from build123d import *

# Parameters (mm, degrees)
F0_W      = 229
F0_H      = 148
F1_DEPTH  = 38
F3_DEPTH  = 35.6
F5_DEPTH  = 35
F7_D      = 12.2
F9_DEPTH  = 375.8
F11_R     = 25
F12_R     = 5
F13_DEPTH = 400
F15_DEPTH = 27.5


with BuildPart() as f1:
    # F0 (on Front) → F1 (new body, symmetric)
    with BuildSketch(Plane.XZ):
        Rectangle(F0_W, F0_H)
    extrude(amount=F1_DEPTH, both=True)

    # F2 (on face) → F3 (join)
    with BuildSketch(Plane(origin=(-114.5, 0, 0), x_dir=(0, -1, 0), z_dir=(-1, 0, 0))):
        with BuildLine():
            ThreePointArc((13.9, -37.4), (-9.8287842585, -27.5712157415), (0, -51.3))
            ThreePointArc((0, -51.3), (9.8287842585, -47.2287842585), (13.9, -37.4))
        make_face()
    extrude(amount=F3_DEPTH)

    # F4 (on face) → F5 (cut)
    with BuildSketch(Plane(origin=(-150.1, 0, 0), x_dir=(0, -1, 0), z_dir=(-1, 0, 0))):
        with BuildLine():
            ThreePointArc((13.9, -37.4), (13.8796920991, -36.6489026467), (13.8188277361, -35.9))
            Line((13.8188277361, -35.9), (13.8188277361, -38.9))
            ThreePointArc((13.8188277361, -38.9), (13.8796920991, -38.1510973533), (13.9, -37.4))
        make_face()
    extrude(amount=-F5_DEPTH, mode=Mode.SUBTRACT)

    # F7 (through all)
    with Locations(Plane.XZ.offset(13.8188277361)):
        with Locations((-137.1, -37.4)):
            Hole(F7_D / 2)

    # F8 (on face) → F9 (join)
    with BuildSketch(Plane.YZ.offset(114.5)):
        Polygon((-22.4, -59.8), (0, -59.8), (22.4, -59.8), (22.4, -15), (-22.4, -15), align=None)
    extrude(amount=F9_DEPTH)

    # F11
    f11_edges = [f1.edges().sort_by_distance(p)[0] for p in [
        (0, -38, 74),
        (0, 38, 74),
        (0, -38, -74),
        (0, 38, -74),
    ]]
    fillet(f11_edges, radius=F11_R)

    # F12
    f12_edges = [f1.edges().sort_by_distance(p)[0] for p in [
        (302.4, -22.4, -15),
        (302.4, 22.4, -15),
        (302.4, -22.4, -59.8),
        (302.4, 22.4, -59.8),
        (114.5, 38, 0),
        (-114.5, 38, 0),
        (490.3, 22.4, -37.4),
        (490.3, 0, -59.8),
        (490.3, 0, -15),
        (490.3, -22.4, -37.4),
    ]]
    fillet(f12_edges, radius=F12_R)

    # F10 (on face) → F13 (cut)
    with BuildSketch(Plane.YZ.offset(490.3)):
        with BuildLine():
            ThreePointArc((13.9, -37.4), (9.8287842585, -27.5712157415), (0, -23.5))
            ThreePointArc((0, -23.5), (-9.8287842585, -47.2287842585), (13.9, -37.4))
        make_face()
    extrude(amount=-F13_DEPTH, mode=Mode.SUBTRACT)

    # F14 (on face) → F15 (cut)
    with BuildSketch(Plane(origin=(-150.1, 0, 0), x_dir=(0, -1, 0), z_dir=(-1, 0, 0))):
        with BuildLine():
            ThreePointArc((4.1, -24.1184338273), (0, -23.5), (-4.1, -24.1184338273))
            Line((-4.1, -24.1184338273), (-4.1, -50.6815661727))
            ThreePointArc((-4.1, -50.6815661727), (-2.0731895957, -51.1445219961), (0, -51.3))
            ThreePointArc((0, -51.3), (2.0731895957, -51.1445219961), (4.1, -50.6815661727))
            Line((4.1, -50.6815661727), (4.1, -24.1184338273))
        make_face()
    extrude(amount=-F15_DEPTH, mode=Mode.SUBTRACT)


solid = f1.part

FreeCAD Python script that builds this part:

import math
import FreeCAD as App
import Part
import Sketcher
Q = App.Units.Quantity


def edges_at(feature, points):
    """Names of the edges that pass closest to the given points."""
    edges = feature.Shape.Edges
    near = lambda p: min(range(len(edges)), key=lambda i: edges[i].distToShape(Part.Vertex(*p))[0])
    return sorted({f"Edge{near(p) + 1}" for p in points})


def add_polygon(sketch, points):
    """Adds a closed chain of lines whose ends are joined by coincident constraints."""
    first, n = sketch.GeometryCount, len(points)
    for a, b in zip(points, points[1:] + points[:1]):
        sketch.addGeometry(Part.LineSegment(App.Vector(*a, 0), App.Vector(*b, 0)), False)
    for i in range(n):
        sketch.addConstraint(Sketcher.Constraint("Coincident", first + i, 2, first + (i + 1) % n, 1))

doc = App.newDocument("Part")
body = doc.addObject("PartDesign::Body", "Body")

# Sketch on XZ plane
sketch1 = body.newObject("Sketcher::SketchObject", "Sketch")
sketch1.AttachmentSupport = (doc.getObject("XZ_Plane"), [""])
sketch1.MapMode = "FlatFace"
add_polygon(sketch1, [(-114, 74), (-114, -74), (114, -74), (114, 74)])  # lines 0-3
sketch1.addConstraint([
    Sketcher.Constraint("Vertical", 0),
    Sketcher.Constraint("Horizontal", 1),
    Sketcher.Constraint("Vertical", 2),
    Sketcher.Constraint("Horizontal", 3),
    Sketcher.Constraint("Symmetric", 0, 2, 2, 2, -1, 1),
    Sketcher.Constraint("DistanceX", 1, 1, 1, 2, Q("229 mm")),
    Sketcher.Constraint("DistanceY", 0, 2, 0, 1, Q("148 mm")),
])
pad1 = body.newObject("PartDesign::Pad", "Pad")
pad1.Profile = sketch1
pad1.Length = 76
pad1.Midplane = True

# Sketch on YZ plane
sketch2 = body.newObject("Sketcher::SketchObject", "Sketch001")
sketch2.AttachmentSupport = (doc.getObject("YZ_Plane"), [""])
sketch2.MapMode = "FlatFace"
sketch2.AttachmentOffset = App.Placement(App.Vector(0, 0, -114.5), App.Rotation())
sketch2.addGeometry([
    Part.ArcOfCircle(Part.Circle(App.Vector(0, -37, 0), App.Vector(0, 0, 1), 14), math.radians(-90), math.radians(180)),
    Part.ArcOfCircle(Part.Circle(App.Vector(0, -37, 0), App.Vector(0, 0, 1), 14), math.radians(180), math.radians(270)),
], False)
sketch2.addConstraint([
    Sketcher.Constraint("Tangent", 0, 1, 1, 2),
    Sketcher.Constraint("Coincident", 1, 1, 0, 2),
    Sketcher.Constraint("PointOnObject", 0, 3, -2),
    Sketcher.Constraint("PointOnObject", 0, 1, -2),
    Sketcher.Constraint("Horizontal", 0, 3, 1, 1),
    Sketcher.Constraint("Radius", 0, Q("13.9 mm")),
    Sketcher.Constraint("DistanceY", 0, 3, -1, 1, Q("37.4 mm")),
])
pad2 = body.newObject("PartDesign::Pad", "Pad001")
pad2.Profile = sketch2
pad2.Length = 35.6
pad2.Reversed = True

# Sketch on YZ plane
sketch3 = body.newObject("Sketcher::SketchObject", "Sketch002")
sketch3.AttachmentSupport = (doc.getObject("YZ_Plane"), [""])
sketch3.MapMode = "FlatFace"
sketch3.AttachmentOffset = App.Placement(App.Vector(0, 0, -150.1), App.Rotation())
sketch3.addGeometry([
    Part.ArcOfCircle(Part.Circle(App.Vector(0, -37.4, 0), App.Vector(0, 0, 1), 13.9), math.radians(173.8), math.radians(180)),
    Part.LineSegment(App.Vector(-13.8, -35.9, 0), App.Vector(-13.8, -38.9, 0)),
    Part.ArcOfCircle(Part.Circle(App.Vector(0, -37.4, 0), App.Vector(0, 0, 1), 13.9), math.radians(180), math.radians(186.2)),
], False)
sketch3.addConstraint([
    Sketcher.Constraint("Coincident", 0, 1, 1, 1),
    Sketcher.Constraint("Coincident", 1, 2, 2, 2),
    Sketcher.Constraint("Tangent", 2, 1, 0, 2),
    Sketcher.Constraint("Vertical", 1),
    Sketcher.Constraint("Equal", 0, 2),
    Sketcher.Constraint("PointOnObject", 0, 3, -2),
    Sketcher.Constraint("Horizontal", 0, 3, 2, 1),
    Sketcher.Constraint("Radius", 0, Q("13.9 mm")),
    Sketcher.Constraint("DistanceY", 1, 2, 1, 1, Q("3 mm")),
    Sketcher.Constraint("DistanceY", 0, 3, -1, 1, Q("37.4 mm")),
])
pocket1 = body.newObject("PartDesign::Pocket", "Pocket")
pocket1.Profile = sketch3
pocket1.Length = 35
pocket1.Reversed = True

# Sketch on XZ plane
sketch4 = body.newObject("Sketcher::SketchObject", "Sketch003")
sketch4.AttachmentSupport = (doc.getObject("XZ_Plane"), [""])
sketch4.MapMode = "FlatFace"
sketch4.AttachmentOffset = App.Placement(App.Vector(0, 0, 13.818828), App.Rotation())
sketch4.addGeometry(Part.Circle(App.Vector(-137, -37, 0), App.Vector(0, 0, 1), 6), False)
sketch4.addConstraint([
    Sketcher.Constraint("Diameter", 0, Q("12.2 mm")),
    Sketcher.Constraint("DistanceX", 0, 3, -1, 1, Q("137.1 mm")),
    Sketcher.Constraint("DistanceY", 0, 3, -1, 1, Q("37.4 mm")),
])
doc.recompute()
hole = body.newObject("PartDesign::Hole", "Hole")
hole.Profile = sketch4
hole.ThreadType = "None"
hole.Diameter = 12.2
hole.DepthType = "ThroughAll"

# Sketch on YZ plane
sketch5 = body.newObject("Sketcher::SketchObject", "Sketch004")
sketch5.AttachmentSupport = (doc.getObject("YZ_Plane"), [""])
sketch5.MapMode = "FlatFace"
sketch5.AttachmentOffset = App.Placement(App.Vector(0, 0, 114.5), App.Rotation())
add_polygon(sketch5, [(-22, -60), (22, -60), (22, -15), (-22, -15)])  # lines 0-3
sketch5.addConstraint([
    Sketcher.Constraint("Horizontal", 0),
    Sketcher.Constraint("Vertical", 1),
    Sketcher.Constraint("Horizontal", 2),
    Sketcher.Constraint("Vertical", 3),
    Sketcher.Constraint("Equal", 2, 1),
    Sketcher.Constraint("DistanceX", 0, 1, 0, 2, Q("44.8 mm")),
    Sketcher.Constraint("DistanceY", 1, 2, -1, 1, Q("15 mm")),
    Sketcher.Constraint("DistanceX", -1, 1, 0, 2, Q("22.4 mm")),
])
pad3 = body.newObject("PartDesign::Pad", "Pad002")
pad3.Profile = sketch5
pad3.Length = 375.8
doc.recompute()

fillet = body.newObject("PartDesign::Fillet", "Fillet")
fillet.Base = (pad3, edges_at(pad3, [
    (0, -38, 74),
    (0, 38, 74),
    (0, -38, -74),
    (0, 38, -74),
]))
fillet.Radius = 25
doc.recompute()

fillet2 = body.newObject("PartDesign::Fillet", "Fillet001")
fillet2.Base = (fillet, edges_at(fillet, [
    (302.4, -22.4, -15),
    (302.4, 22.4, -15),
    (302.4, -22.4, -59.8),
    (302.4, 22.4, -59.8),
    (114.5, 38, 0),
    (-114.5, 38, 0),
    (490.3, 22.4, -37.4),
    (490.3, 0, -59.8),
    (490.3, 0, -15),
    (490.3, -22.4, -37.4),
]))
fillet2.Radius = 5

# Sketch on YZ plane
sketch6 = body.newObject("Sketcher::SketchObject", "Sketch005")
sketch6.AttachmentSupport = (doc.getObject("YZ_Plane"), [""])
sketch6.MapMode = "FlatFace"
sketch6.AttachmentOffset = App.Placement(App.Vector(0, 0, 490.3), App.Rotation())
sketch6.addGeometry([
    Part.ArcOfCircle(Part.Circle(App.Vector(0, -37, 0), App.Vector(0, 0, 1), 14), math.radians(0), math.radians(90)),
    Part.ArcOfCircle(Part.Circle(App.Vector(0, -37, 0), App.Vector(0, 0, 1), 14), math.radians(90), math.radians(360)),
], False)
sketch6.addConstraint([
    Sketcher.Constraint("Tangent", 0, 1, 1, 2),
    Sketcher.Constraint("Coincident", 1, 1, 0, 2),
    Sketcher.Constraint("PointOnObject", 0, 3, -2),
    Sketcher.Constraint("PointOnObject", 1, 1, -2),
    Sketcher.Constraint("Horizontal", 1, 3, 0, 1),
    Sketcher.Constraint("Radius", 0, Q("13.9 mm")),
    Sketcher.Constraint("DistanceY", 0, 3, -1, 1, Q("37.4 mm")),
])
pocket2 = body.newObject("PartDesign::Pocket", "Pocket001")
pocket2.Profile = sketch6
pocket2.Length = 400

# Sketch on YZ plane
sketch7 = body.newObject("Sketcher::SketchObject", "Sketch006")
sketch7.AttachmentSupport = (doc.getObject("YZ_Plane"), [""])
sketch7.MapMode = "FlatFace"
sketch7.AttachmentOffset = App.Placement(App.Vector(0, 0, -150.1), App.Rotation())
sketch7.addGeometry([
    Part.ArcOfCircle(Part.Circle(App.Vector(0, -37.4, 0), App.Vector(0, 0, 1), 13.9), math.radians(73), math.radians(107)),  # 0
    Part.LineSegment(App.Vector(4.1, -24.1, 0), App.Vector(4.1, -50.7, 0)),  # 1
    Part.ArcOfCircle(Part.Circle(App.Vector(0, -37.4, 0), App.Vector(0, 0, 1), 13.9), math.radians(-90), math.radians(-72.84)),  # 2
    Part.ArcOfCircle(Part.Circle(App.Vector(0, -37.4, 0), App.Vector(0, 0, 1), 13.9), math.radians(-107.16), math.radians(-90)),  # 3
    Part.LineSegment(App.Vector(-4.1, -50.7, 0), App.Vector(-4.1, -24.1, 0)),  # 4
], False)
sketch7.addConstraint([
    Sketcher.Constraint("Coincident", 0, 1, 1, 1),
    Sketcher.Constraint("Coincident", 1, 2, 2, 2),
    Sketcher.Constraint("Tangent", 2, 1, 3, 2),
    Sketcher.Constraint("Coincident", 3, 1, 4, 1),
    Sketcher.Constraint("Coincident", 4, 2, 0, 2),
    Sketcher.Constraint("Vertical", 1),
    Sketcher.Constraint("Vertical", 4),
    Sketcher.Constraint("Coincident", 2, 3, 0, 3),
    Sketcher.Constraint("Equal", 0, 2),
    Sketcher.Constraint("Equal", 2, 3),
    Sketcher.Constraint("Symmetric", 1, 2, 3, 1, -2),
    Sketcher.Constraint("PointOnObject", 2, 1, -2),
    Sketcher.Constraint("Radius", 0, Q("13.9 mm")),
    Sketcher.Constraint("DistanceY", 0, 3, -1, 1, Q("37.4 mm")),
    Sketcher.Constraint("DistanceX", -1, 1, 0, 1, Q("4.1 mm")),
])
pocket3 = body.newObject("PartDesign::Pocket", "Pocket002")
pocket3.Profile = sketch7
pocket3.Length = 27.5
pocket3.Reversed = True

doc.recompute()
